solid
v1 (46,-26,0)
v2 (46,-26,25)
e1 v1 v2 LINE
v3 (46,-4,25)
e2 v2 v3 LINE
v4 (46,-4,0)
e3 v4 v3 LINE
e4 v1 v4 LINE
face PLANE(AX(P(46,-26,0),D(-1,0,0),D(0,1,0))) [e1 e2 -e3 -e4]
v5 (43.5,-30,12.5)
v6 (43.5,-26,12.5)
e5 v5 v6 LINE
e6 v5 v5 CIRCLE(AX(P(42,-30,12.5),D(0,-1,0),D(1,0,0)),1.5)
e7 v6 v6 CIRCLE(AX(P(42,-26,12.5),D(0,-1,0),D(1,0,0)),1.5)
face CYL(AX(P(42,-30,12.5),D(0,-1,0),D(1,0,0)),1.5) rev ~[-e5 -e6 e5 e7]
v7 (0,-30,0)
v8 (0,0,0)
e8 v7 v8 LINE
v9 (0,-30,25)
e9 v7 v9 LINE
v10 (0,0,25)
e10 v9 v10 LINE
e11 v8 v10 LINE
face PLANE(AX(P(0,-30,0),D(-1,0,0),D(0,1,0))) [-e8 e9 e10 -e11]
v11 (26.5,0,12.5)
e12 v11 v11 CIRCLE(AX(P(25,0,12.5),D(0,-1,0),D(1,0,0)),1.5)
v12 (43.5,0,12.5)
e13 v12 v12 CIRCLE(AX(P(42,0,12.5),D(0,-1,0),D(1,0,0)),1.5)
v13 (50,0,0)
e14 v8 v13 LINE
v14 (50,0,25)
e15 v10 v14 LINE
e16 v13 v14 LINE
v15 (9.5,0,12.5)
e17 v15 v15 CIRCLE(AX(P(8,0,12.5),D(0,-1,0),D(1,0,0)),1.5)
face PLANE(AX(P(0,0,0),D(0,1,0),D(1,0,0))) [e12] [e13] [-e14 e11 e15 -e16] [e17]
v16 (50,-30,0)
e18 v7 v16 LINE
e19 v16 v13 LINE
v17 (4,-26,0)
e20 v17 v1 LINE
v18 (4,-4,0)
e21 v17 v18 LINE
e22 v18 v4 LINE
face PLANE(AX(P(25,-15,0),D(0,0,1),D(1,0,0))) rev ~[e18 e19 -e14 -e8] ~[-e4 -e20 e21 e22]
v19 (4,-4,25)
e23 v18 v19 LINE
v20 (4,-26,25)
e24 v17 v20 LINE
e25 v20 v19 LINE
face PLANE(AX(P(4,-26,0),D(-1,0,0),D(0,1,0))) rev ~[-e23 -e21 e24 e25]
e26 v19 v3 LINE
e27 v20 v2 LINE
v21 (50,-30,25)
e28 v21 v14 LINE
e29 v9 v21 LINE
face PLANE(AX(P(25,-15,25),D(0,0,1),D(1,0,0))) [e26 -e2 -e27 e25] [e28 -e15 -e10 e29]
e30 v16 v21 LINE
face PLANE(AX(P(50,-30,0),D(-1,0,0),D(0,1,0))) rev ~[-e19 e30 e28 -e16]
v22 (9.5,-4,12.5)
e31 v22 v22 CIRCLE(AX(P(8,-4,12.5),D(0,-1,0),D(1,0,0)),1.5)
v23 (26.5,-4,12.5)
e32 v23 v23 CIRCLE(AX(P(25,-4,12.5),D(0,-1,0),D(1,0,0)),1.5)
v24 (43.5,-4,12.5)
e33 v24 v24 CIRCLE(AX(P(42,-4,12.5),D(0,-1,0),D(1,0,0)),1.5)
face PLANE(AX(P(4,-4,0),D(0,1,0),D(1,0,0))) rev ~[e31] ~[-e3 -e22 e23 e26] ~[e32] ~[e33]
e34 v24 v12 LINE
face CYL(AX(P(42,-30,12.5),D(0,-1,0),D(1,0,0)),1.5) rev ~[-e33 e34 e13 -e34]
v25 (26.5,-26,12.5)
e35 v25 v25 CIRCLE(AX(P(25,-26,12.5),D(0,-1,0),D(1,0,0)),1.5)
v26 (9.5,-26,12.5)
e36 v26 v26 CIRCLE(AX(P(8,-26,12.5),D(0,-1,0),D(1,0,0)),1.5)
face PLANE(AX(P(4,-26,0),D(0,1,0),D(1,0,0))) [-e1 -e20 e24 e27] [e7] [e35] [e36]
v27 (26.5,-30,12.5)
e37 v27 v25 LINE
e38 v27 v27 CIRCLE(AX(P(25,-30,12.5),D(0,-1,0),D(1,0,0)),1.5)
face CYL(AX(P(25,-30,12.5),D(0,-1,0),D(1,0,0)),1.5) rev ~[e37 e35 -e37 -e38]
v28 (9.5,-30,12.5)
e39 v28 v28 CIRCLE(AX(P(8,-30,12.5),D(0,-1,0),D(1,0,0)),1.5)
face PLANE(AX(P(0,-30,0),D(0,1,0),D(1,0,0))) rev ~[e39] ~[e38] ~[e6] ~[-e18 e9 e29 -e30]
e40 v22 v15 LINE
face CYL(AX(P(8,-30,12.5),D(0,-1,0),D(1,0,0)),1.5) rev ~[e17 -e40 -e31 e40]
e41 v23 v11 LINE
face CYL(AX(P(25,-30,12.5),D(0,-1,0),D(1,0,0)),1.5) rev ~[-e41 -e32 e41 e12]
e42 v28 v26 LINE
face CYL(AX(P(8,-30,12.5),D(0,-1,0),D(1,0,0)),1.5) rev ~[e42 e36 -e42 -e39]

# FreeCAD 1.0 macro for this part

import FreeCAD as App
import Part
import Sketcher
from FreeCAD import Vector


def add_polygon(sketch, points):
    """Adds a closed chain of lines whose ends are joined by coincident constraints."""
    first, n = sketch.GeometryCount, len(points)
    for a, b in zip(points, points[1:] + points[:1]):
        sketch.addGeometry(Part.LineSegment(App.Vector(*a, 0), App.Vector(*b, 0)), False)
    for i in range(n):
        sketch.addConstraint(Sketcher.Constraint("Coincident", first + i, 2, first + (i + 1) % n, 1))

doc = App.newDocument("Part")
body = doc.addObject("PartDesign::Body", "Body")

sketch1 = body.newObject("Sketcher::SketchObject", "Sketch")
sketch1.AttachmentSupport = (doc.getObject("XY_Plane"), [""])
sketch1.MapMode = "FlatFace"
add_polygon(sketch1, [(0, 0), (0, -30), (50, -30), (50, 0)])
add_polygon(sketch1, [(46, -26), (4, -26), (4, -4), (46, -4)])
sketch1.addConstraint([
    Sketcher.Constraint("Vertical", 0),
    Sketcher.Constraint("Horizontal", 1),
    Sketcher.Constraint("Vertical", 2),
    Sketcher.Constraint("Horizontal", 3),
    Sketcher.Constraint("Horizontal", 4),
    Sketcher.Constraint("Vertical", 5),
    Sketcher.Constraint("Horizontal", 6),
    Sketcher.Constraint("Vertical", 7),
    Sketcher.Constraint("Coincident", 3, 2, -1, 1),
    Sketcher.Constraint("DistanceX", 1, 1, 1, 2, 50.0),
    Sketcher.Constraint("DistanceX", 4, 2, 4, 1, 42.0),
    Sketcher.Constraint("DistanceY", 0, 2, 0, 1, 30.0),
    Sketcher.Constraint("DistanceY", 5, 1, 5, 2, 22.0),
    Sketcher.Constraint("DistanceX", -1, 1, 4, 2, 4.0),
    Sketcher.Constraint("DistanceY", 4, 2, -1, 1, 26.0),
])
pad1 = body.newObject("PartDesign::Pad", "Pad")
pad1.Profile = sketch1
pad1.Length = 25

sketch2 = body.newObject("Sketcher::SketchObject", "Sketch001")
sketch2.AttachmentSupport = (doc.getObject("XZ_Plane"), [""])
sketch2.MapMode = "FlatFace"
sketch2.AttachmentOffset = App.Placement(Vector(0, 0, 30), App.Rotation())
sketch2.addGeometry([
    Part.Circle(Vector(25, 12.5, 0), Vector(0, 0, 1), 1.5),
    Part.Circle(Vector(8, 12.5, 0), Vector(0, 0, 1), 1.5),
    Part.Circle(Vector(42, 12.5, 0), Vector(0, 0, 1), 1.5),
], False)
sketch2.addConstraint([
    Sketcher.Constraint("Equal", 0, 1),
    Sketcher.Constraint("Equal", 1, 2),
    Sketcher.Constraint("Horizontal", 0, 3, 1, 3),
    Sketcher.Constraint("Horizontal", 1, 3, 2, 3),
    Sketcher.Constraint("Diameter", 0, 3.0),
    Sketcher.Constraint("DistanceX", -1, 1, 0, 3, 25.0),
    Sketcher.Constraint("DistanceX", -1, 1, 1, 3, 8.0),
    Sketcher.Constraint("DistanceX", -1, 1, 2, 3, 42.0),
    Sketcher.Constraint("DistanceY", -1, 1, 0, 3, 12.5),
])
pocket1 = body.newObject("PartDesign::Pocket", "Pocket")
pocket1.Profile = sketch2
pocket1.Length = 35

doc.recompute()
